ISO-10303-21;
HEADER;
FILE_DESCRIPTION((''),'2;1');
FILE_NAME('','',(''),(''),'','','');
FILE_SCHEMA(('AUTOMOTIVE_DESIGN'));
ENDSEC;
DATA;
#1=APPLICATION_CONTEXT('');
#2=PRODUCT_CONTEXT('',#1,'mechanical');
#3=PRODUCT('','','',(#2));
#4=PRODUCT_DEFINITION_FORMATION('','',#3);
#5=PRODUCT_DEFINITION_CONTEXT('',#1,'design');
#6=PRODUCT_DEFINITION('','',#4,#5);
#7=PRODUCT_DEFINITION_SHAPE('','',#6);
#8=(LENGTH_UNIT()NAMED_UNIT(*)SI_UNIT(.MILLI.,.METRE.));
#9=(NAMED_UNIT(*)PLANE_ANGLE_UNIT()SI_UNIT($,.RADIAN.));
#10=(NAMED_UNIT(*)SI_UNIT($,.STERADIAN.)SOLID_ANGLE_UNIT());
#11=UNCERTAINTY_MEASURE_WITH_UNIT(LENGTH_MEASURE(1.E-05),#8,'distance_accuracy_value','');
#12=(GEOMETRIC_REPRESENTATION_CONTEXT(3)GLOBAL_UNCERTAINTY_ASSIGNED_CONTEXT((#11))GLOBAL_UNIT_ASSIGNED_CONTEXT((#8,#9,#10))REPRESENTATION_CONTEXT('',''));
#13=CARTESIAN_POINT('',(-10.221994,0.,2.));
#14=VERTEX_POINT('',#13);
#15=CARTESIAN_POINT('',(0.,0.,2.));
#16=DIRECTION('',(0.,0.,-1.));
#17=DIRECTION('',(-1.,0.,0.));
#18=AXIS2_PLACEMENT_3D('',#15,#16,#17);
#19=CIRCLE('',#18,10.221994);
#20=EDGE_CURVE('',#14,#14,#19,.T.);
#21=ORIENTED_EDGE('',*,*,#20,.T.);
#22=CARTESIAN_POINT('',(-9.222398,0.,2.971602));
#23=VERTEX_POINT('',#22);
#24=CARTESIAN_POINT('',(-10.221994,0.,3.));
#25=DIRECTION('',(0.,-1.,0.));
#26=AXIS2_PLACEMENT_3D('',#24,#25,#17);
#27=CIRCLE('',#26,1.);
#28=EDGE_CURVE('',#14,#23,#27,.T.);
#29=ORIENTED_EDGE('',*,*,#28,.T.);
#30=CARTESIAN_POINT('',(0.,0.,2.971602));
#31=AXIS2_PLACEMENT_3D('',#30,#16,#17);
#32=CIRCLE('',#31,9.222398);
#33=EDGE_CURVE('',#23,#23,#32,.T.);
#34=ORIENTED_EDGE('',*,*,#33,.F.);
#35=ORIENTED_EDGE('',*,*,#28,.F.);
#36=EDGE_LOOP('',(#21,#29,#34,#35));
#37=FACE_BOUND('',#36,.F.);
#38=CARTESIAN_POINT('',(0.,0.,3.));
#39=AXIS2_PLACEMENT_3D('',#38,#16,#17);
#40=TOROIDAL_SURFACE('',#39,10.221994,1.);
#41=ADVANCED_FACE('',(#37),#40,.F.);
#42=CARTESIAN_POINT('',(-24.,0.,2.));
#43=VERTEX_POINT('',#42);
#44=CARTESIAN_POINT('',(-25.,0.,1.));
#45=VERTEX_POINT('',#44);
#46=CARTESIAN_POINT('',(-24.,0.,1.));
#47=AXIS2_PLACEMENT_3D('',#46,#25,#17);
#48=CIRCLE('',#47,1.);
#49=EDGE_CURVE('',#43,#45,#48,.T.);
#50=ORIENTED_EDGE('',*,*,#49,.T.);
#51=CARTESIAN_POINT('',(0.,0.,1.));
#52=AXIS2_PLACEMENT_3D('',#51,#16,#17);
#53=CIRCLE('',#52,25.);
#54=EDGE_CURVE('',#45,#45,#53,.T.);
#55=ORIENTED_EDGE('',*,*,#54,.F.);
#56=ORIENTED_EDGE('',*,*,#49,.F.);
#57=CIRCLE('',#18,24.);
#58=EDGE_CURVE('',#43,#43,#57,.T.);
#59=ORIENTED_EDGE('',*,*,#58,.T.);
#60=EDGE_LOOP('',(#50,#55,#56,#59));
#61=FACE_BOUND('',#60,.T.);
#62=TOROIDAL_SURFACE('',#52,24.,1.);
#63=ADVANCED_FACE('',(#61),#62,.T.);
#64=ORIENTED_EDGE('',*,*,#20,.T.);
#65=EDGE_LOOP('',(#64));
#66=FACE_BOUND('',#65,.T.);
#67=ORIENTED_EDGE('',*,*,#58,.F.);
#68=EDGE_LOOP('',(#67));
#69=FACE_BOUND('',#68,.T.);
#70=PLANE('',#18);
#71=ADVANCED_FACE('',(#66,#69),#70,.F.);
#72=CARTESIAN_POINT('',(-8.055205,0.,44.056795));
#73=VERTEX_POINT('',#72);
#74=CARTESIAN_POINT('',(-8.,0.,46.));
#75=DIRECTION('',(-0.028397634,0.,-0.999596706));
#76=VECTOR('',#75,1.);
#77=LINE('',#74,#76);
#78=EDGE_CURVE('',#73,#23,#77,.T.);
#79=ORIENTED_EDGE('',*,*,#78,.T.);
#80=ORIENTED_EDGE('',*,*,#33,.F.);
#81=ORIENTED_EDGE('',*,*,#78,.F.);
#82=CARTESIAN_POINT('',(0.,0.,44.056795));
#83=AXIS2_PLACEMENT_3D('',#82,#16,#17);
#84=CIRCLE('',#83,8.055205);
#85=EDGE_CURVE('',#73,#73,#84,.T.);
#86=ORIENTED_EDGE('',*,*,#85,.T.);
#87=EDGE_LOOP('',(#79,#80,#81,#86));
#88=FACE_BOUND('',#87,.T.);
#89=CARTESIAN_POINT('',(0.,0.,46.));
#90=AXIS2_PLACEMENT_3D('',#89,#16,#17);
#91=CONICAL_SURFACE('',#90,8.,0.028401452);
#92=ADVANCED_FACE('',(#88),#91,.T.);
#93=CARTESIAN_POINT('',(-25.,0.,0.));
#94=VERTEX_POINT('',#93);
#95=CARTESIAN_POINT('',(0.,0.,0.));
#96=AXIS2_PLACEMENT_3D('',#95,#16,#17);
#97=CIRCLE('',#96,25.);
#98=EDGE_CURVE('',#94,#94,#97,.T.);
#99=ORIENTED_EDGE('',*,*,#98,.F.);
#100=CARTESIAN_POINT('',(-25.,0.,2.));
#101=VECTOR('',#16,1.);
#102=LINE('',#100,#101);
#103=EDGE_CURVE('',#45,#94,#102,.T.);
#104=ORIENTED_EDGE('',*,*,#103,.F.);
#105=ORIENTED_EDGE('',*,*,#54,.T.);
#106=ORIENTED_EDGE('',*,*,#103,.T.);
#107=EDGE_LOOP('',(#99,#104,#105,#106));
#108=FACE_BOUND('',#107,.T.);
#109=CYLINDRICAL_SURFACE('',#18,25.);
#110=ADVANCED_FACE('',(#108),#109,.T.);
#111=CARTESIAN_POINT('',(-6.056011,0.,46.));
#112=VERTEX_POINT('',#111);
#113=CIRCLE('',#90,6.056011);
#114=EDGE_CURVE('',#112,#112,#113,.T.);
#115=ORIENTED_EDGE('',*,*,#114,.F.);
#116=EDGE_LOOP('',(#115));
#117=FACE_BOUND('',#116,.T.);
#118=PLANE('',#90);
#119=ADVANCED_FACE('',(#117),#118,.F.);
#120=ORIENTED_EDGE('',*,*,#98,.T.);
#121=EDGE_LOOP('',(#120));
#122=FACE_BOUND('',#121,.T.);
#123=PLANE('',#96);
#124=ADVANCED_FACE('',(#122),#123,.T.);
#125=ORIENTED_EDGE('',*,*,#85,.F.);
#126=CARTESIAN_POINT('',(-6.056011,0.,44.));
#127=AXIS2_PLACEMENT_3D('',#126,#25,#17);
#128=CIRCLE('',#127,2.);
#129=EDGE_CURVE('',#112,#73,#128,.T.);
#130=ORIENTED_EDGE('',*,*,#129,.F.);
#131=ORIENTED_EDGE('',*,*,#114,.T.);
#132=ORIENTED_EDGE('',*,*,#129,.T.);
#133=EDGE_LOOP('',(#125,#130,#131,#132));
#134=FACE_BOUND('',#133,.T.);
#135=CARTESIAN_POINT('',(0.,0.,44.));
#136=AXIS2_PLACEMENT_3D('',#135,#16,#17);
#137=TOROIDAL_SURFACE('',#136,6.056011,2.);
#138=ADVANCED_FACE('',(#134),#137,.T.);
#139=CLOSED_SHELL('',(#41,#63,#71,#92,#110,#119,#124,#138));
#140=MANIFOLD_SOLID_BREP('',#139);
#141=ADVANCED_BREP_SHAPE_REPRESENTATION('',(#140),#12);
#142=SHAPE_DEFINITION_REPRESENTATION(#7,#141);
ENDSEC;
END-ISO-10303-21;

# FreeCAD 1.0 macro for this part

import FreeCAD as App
import Part
import Sketcher

V = App.Vector
Q = App.Units.Quantity


def edges_at(feature, points):
    """Names of the edges that pass closest to the given points."""
    edges = feature.Shape.Edges
    near = lambda p: min(range(len(edges)), key=lambda i: edges[i].distToShape(Part.Vertex(*p))[0])
    return sorted({f"Edge{near(p) + 1}" for p in points})

doc = App.newDocument("Part")
body = doc.addObject("PartDesign::Body", "Body")

# Sketch on XZ plane
sketch1 = doc.addObject("Sketcher::SketchObject", "Sketch")
body.addObject(sketch1)
sketch1.AttachmentSupport = (doc.XZ_Plane, [""])
sketch1.MapMode = "FlatFace"
sketch1.addGeometry(Part.LineSegment(V(-25, 0, 0), V(0, 0, 0)), False)
sketch1.addGeometry(Part.LineSegment(V(0, 0, 0), V(0, 46, 0)), False)
sketch1.addGeometry(Part.LineSegment(V(0, 46, 0), V(-8, 46, 0)), False)
sketch1.addGeometry(Part.LineSegment(V(-8, 46, 0), V(-9.2, 2, 0)), False)
sketch1.addGeometry(Part.LineSegment(V(-9.2, 2, 0), V(-25, 2, 0)), False)
sketch1.addGeometry(Part.LineSegment(V(-25, 2, 0), V(-25, 0, 0)), False)
sketch1.addConstraint(Sketcher.Constraint("Coincident", 0, 2, 1, 1))
sketch1.addConstraint(Sketcher.Constraint("Coincident", 1, 2, 2, 1))
sketch1.addConstraint(Sketcher.Constraint("Coincident", 2, 2, 3, 1))
sketch1.addConstraint(Sketcher.Constraint("Coincident", 3, 2, 4, 1))
sketch1.addConstraint(Sketcher.Constraint("Coincident", 4, 2, 5, 1))
sketch1.addConstraint(Sketcher.Constraint("Coincident", 5, 2, 0, 1))
sketch1.addConstraint(Sketcher.Constraint("Horizontal", 0))
sketch1.addConstraint(Sketcher.Constraint("Vertical", 1))
sketch1.addConstraint(Sketcher.Constraint("Horizontal", 2))
sketch1.addConstraint(Sketcher.Constraint("Horizontal", 4))
sketch1.addConstraint(Sketcher.Constraint("Vertical", 5))
sketch1.addConstraint(Sketcher.Constraint("Coincident", 0, 2, -1, 1))
sketch1.addConstraint(Sketcher.Constraint("DistanceX", 0, 1, 0, 2, Q("25 mm")))
sketch1.addConstraint(Sketcher.Constraint("DistanceX", 2, 2, 2, 1, Q("8 mm")))
sketch1.addConstraint(Sketcher.Constraint("DistanceY", 1, 1, 1, 2, Q("46 mm")))
sketch1.addConstraint(Sketcher.Constraint("DistanceY", 5, 2, 5, 1, Q("2 mm")))
sketch1.addConstraint(Sketcher.Constraint("DistanceX", 4, 2, 4, 1, Q("15.75 mm")))
revolution = doc.addObject("PartDesign::Revolution", "Revolution")
body.addObject(revolution)
revolution.Profile = sketch1
revolution.ReferenceAxis = (sketch1, ["V_Axis"])
revolution.Angle = 360
doc.recompute()

fillet = doc.addObject("PartDesign::Fillet", "Fillet")
body.addObject(fillet)
fillet.Base = (revolution, edges_at(revolution, [(8, 0, 46)]))
fillet.Radius = 2
doc.recompute()

fillet2 = doc.addObject("PartDesign::Fillet", "Fillet001")
body.addObject(fillet2)
fillet2.Base = (fillet, edges_at(fillet, [(25, 0, 2)]))
fillet2.Radius = 1
doc.recompute()

fillet3 = doc.addObject("PartDesign::Fillet", "Fillet002")
body.addObject(fillet3)
fillet3.Base = (fillet2, edges_at(fillet2, [(9.25, 0, 2)]))
fillet3.Radius = 1

doc.recompute()
